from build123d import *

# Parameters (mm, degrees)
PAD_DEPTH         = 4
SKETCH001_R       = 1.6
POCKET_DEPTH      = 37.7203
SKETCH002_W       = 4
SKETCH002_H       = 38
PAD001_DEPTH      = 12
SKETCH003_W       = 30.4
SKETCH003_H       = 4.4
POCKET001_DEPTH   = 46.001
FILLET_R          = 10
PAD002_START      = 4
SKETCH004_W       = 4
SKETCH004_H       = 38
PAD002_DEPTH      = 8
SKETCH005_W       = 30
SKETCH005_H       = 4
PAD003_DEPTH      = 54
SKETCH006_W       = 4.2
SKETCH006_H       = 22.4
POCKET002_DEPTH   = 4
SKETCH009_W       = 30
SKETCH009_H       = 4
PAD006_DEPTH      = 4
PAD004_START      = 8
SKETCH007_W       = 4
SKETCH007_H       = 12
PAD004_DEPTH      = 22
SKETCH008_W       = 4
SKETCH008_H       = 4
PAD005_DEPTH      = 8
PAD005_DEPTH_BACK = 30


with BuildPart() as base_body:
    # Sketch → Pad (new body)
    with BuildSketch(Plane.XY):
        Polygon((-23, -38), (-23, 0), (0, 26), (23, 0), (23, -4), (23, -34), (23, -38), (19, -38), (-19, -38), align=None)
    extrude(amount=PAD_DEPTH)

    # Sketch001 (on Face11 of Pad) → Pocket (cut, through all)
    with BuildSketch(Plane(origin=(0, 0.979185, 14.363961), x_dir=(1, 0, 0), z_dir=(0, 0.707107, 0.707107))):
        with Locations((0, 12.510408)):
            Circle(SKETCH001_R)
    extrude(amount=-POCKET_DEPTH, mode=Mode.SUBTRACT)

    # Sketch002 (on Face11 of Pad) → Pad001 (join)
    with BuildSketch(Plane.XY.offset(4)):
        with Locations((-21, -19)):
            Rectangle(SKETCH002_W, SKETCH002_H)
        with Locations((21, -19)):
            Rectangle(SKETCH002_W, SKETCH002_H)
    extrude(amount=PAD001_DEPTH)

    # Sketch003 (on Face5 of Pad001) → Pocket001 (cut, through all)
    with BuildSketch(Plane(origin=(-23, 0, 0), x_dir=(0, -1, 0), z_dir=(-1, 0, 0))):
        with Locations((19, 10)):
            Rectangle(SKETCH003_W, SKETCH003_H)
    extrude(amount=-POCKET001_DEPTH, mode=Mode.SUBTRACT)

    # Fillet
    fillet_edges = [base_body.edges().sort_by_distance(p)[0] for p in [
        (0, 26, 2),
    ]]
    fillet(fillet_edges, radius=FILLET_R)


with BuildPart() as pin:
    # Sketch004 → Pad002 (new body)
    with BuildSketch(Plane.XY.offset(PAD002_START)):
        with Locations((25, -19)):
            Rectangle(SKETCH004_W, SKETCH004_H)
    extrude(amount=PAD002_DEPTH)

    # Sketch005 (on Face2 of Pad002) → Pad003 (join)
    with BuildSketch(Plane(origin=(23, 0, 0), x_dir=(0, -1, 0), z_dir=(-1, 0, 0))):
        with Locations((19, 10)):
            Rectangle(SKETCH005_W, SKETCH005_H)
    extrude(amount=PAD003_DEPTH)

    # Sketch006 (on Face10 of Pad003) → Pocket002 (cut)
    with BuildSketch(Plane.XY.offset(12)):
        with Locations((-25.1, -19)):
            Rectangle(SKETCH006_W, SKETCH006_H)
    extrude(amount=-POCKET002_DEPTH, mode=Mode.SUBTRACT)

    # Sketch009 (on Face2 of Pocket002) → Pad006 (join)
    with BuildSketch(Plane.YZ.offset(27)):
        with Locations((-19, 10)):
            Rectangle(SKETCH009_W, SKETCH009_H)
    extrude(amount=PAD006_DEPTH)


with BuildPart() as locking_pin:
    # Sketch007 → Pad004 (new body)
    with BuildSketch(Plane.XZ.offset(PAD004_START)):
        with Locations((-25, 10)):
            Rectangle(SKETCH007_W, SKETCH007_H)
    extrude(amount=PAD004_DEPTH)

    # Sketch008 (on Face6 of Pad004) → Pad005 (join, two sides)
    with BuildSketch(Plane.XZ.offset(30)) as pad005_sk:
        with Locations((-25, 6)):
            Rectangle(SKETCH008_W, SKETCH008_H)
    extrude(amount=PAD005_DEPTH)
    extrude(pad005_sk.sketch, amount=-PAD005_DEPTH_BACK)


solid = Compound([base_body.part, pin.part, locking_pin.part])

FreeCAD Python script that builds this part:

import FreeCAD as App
import Part
import Sketcher
from FreeCAD import Vector


def edges_at(feature, points):
    """Names of the edges that pass closest to the given points."""
    edges = feature.Shape.Edges
    near = lambda p: min(range(len(edges)), key=lambda i: edges[i].distToShape(Part.Vertex(*p))[0])
    return sorted({f"Edge{near(p) + 1}" for p in points})

doc = App.newDocument("Part")
body = doc.addObject("PartDesign::Body", "Body")

# Sketch on XY plane
sketch1 = body.newObject("Sketcher::SketchObject", "Sketch")
sketch1.AttachmentSupport = (doc.getObject("XY_Plane"), [""])
sketch1.MapMode = "FlatFace"
sketch1.addGeometry(Part.LineSegment(Vector(-23, 0, 0), Vector(-23, -38, 0)), False)
sketch1.addGeometry(Part.LineSegment(Vector(-23, -38, 0), Vector(23, -38, 0)), False)
sketch1.addGeometry(Part.LineSegment(Vector(23, -38, 0), Vector(23, 0, 0)), False)
sketch1.addGeometry(Part.LineSegment(Vector(23, 0, 0), Vector(0, 26, 0)), False)
sketch1.addGeometry(Part.LineSegment(Vector(0, 26, 0), Vector(-23, 0, 0)), False)
sketch1.addConstraint(Sketcher.Constraint("Coincident", 0, 2, 1, 1))
sketch1.addConstraint(Sketcher.Constraint("Coincident", 1, 2, 2, 1))
sketch1.addConstraint(Sketcher.Constraint("Coincident", 2, 2, 3, 1))
sketch1.addConstraint(Sketcher.Constraint("Coincident", 3, 2, 4, 1))
sketch1.addConstraint(Sketcher.Constraint("Coincident", 4, 2, 0, 1))
sketch1.addConstraint(Sketcher.Constraint("Vertical", 0))
sketch1.addConstraint(Sketcher.Constraint("Horizontal", 1))
sketch1.addConstraint(Sketcher.Constraint("Vertical", 2))
sketch1.addConstraint(Sketcher.Constraint("Symmetric", 2, 2, 4, 2, -1, 1))
sketch1.addConstraint(Sketcher.Constraint("PointOnObject", 2, 2, -1))
sketch1.addConstraint(Sketcher.Constraint("PointOnObject", 3, 2, -2))
sketch1.addConstraint(Sketcher.Constraint("DistanceX", 1, 1, 1, 2, 46.0))
sketch1.addConstraint(Sketcher.Constraint("DistanceY", 0, 2, 0, 1, 38.0))
sketch1.addConstraint(Sketcher.Constraint("DistanceY", -1, 1, 3, 2, 26.0))
pad1 = body.newObject("PartDesign::Pad", "Pad")
pad1.Profile = sketch1
pad1.Length = 4

# Sketch on an angled plane
sketch2 = body.newObject("Sketcher::SketchObject", "Sketch001")
sketch2.Placement = App.Placement(Vector(0, 0.979185, 14.363961), App.Rotation(Vector(1, 0, 0), Vector(0, 0.707106781, -0.707106781), Vector(0, 0.707106781, 0.707106781), "ZXY"))
sketch2.addGeometry(Part.Circle(Vector(0, 12.5, 0), Vector(0, 0, 1), 1.6), False)
sketch2.addConstraint(Sketcher.Constraint("PointOnObject", 0, 3, -2))
sketch2.addConstraint(Sketcher.Constraint("Diameter", 0, 3.2))
sketch2.addConstraint(Sketcher.Constraint("DistanceY", -1, 1, 0, 3, 12.510408))
pocket1 = body.newObject("PartDesign::Pocket", "Pocket")
pocket1.Profile = sketch2
pocket1.Type = "ThroughAll"

# Sketch on XY plane
sketch3 = body.newObject("Sketcher::SketchObject", "Sketch002")
sketch3.AttachmentSupport = (doc.getObject("XY_Plane"), [""])
sketch3.MapMode = "FlatFace"
sketch3.AttachmentOffset = App.Placement(Vector(0, 0, 4), App.Rotation())
sketch3.addGeometry(Part.LineSegment(Vector(-23, 0, 0), Vector(-23, -38, 0)), False)
sketch3.addGeometry(Part.LineSegment(Vector(-23, -38, 0), Vector(-19, -38, 0)), False)
sketch3.addGeometry(Part.LineSegment(Vector(-19, -38, 0), Vector(-19, 0, 0)), False)
sketch3.addGeometry(Part.LineSegment(Vector(-19, 0, 0), Vector(-23, 0, 0)), False)
sketch3.addGeometry(Part.LineSegment(Vector(19, 0, 0), Vector(19, -38, 0)), False)
sketch3.addGeometry(Part.LineSegment(Vector(19, -38, 0), Vector(23, -38, 0)), False)
sketch3.addGeometry(Part.LineSegment(Vector(23, -38, 0), Vector(23, 0, 0)), False)
sketch3.addGeometry(Part.LineSegment(Vector(23, 0, 0), Vector(19, 0, 0)), False)
sketch3.addConstraint(Sketcher.Constraint("Coincident", 0, 2, 1, 1))
sketch3.addConstraint(Sketcher.Constraint("Coincident", 1, 2, 2, 1))
sketch3.addConstraint(Sketcher.Constraint("Coincident", 2, 2, 3, 1))
sketch3.addConstraint(Sketcher.Constraint("Coincident", 3, 2, 0, 1))
sketch3.addConstraint(Sketcher.Constraint("Coincident", 4, 2, 5, 1))
sketch3.addConstraint(Sketcher.Constraint("Coincident", 5, 2, 6, 1))
sketch3.addConstraint(Sketcher.Constraint("Coincident", 6, 2, 7, 1))
sketch3.addConstraint(Sketcher.Constraint("Coincident", 7, 2, 4, 1))
sketch3.addConstraint(Sketcher.Constraint("Vertical", 0))
sketch3.addConstraint(Sketcher.Constraint("Horizontal", 1))
sketch3.addConstraint(Sketcher.Constraint("Vertical", 2))
sketch3.addConstraint(Sketcher.Constraint("Horizontal", 3))
sketch3.addConstraint(Sketcher.Constraint("Vertical", 4))
sketch3.addConstraint(Sketcher.Constraint("Horizontal", 5))
sketch3.addConstraint(Sketcher.Constraint("Vertical", 6))
sketch3.addConstraint(Sketcher.Constraint("Horizontal", 7))
sketch3.addConstraint(Sketcher.Constraint("Symmetric", 3, 2, 6, 2, -1, 1))
sketch3.addConstraint(Sketcher.Constraint("Symmetric", 1, 2, 4, 2, -2))
sketch3.addConstraint(Sketcher.Constraint("PointOnObject", 2, 2, -1))
sketch3.addConstraint(Sketcher.Constraint("DistanceX", 1, 1, 1, 2, 4.0))
sketch3.addConstraint(Sketcher.Constraint("DistanceY", 0, 2, 0, 1, 38.0))
sketch3.addConstraint(Sketcher.Constraint("DistanceX", 0, 2, -1, 1, 23.0))
pad2 = body.newObject("PartDesign::Pad", "Pad001")
pad2.Profile = sketch3
pad2.Length = 12

# Sketch on YZ plane
sketch4 = body.newObject("Sketcher::SketchObject", "Sketch003")
sketch4.AttachmentSupport = (doc.getObject("YZ_Plane"), [""])
sketch4.MapMode = "FlatFace"
sketch4.AttachmentOffset = App.Placement(Vector(0, 0, -23), App.Rotation())
sketch4.addGeometry(Part.LineSegment(Vector(-3.8, 12.2, 0), Vector(-3.8, 7.8, 0)), False)
sketch4.addGeometry(Part.LineSegment(Vector(-3.8, 7.8, 0), Vector(-34.2, 7.8, 0)), False)
sketch4.addGeometry(Part.LineSegment(Vector(-34.2, 7.8, 0), Vector(-34.2, 12.2, 0)), False)
sketch4.addGeometry(Part.LineSegment(Vector(-34.2, 12.2, 0), Vector(-3.8, 12.2, 0)), False)
sketch4.addConstraint(Sketcher.Constraint("Coincident", 0, 2, 1, 1))
sketch4.addConstraint(Sketcher.Constraint("Coincident", 1, 2, 2, 1))
sketch4.addConstraint(Sketcher.Constraint("Coincident", 2, 2, 3, 1))
sketch4.addConstraint(Sketcher.Constraint("Coincident", 3, 2, 0, 1))
sketch4.addConstraint(Sketcher.Constraint("Vertical", 0))
sketch4.addConstraint(Sketcher.Constraint("Horizontal", 1))
sketch4.addConstraint(Sketcher.Constraint("Vertical", 2))
sketch4.addConstraint(Sketcher.Constraint("Horizontal", 3))
sketch4.addConstraint(Sketcher.Constraint("DistanceX", 1, 2, 1, 1, 30.4))
sketch4.addConstraint(Sketcher.Constraint("DistanceY", 0, 2, 0, 1, 4.4))
sketch4.addConstraint(Sketcher.Constraint("DistanceX", 0, 2, -1, 1, 3.8))
sketch4.addConstraint(Sketcher.Constraint("DistanceY", -1, 1, 0, 2, 7.8))
pocket2 = body.newObject("PartDesign::Pocket", "Pocket001")
pocket2.Profile = sketch4
pocket2.Type = "ThroughAll"
pocket2.Reversed = True
doc.recompute()

fillet = body.newObject("PartDesign::Fillet", "Fillet")
fillet.Base = (pocket2, edges_at(pocket2, [(0, 26, 2)]))
fillet.Radius = 10
body2 = doc.addObject("PartDesign::Body", "Body001")

# Sketch on XY plane
sketch5 = body2.newObject("Sketcher::SketchObject", "Sketch004")
sketch5.AttachmentSupport = (doc.getObject("XY_Plane001"), [""])
sketch5.MapMode = "FlatFace"
sketch5.AttachmentOffset = App.Placement(Vector(0, 0, 4), App.Rotation())
sketch5.addGeometry(Part.LineSegment(Vector(23, 0, 0), Vector(23, -38, 0)), False)
sketch5.addGeometry(Part.LineSegment(Vector(23, -38, 0), Vector(27, -38, 0)), False)
sketch5.addGeometry(Part.LineSegment(Vector(27, -38, 0), Vector(27, 0, 0)), False)
sketch5.addGeometry(Part.LineSegment(Vector(27, 0, 0), Vector(23, 0, 0)), False)
sketch5.addConstraint(Sketcher.Constraint("Coincident", 0, 2, 1, 1))
sketch5.addConstraint(Sketcher.Constraint("Coincident", 1, 2, 2, 1))
sketch5.addConstraint(Sketcher.Constraint("Coincident", 2, 2, 3, 1))
sketch5.addConstraint(Sketcher.Constraint("Coincident", 3, 2, 0, 1))
sketch5.addConstraint(Sketcher.Constraint("Vertical", 0))
sketch5.addConstraint(Sketcher.Constraint("Horizontal", 1))
sketch5.addConstraint(Sketcher.Constraint("Vertical", 2))
sketch5.addConstraint(Sketcher.Constraint("Horizontal", 3))
sketch5.addConstraint(Sketcher.Constraint("PointOnObject", 2, 2, -1))
sketch5.addConstraint(Sketcher.Constraint("DistanceX", 1, 1, 1, 2, 4.0))
sketch5.addConstraint(Sketcher.Constraint("DistanceY", 0, 2, 0, 1, 38.0))
sketch5.addConstraint(Sketcher.Constraint("DistanceX", -1, 1, 0, 2, 23.0))
pad3 = body2.newObject("PartDesign::Pad", "Pad002")
pad3.Profile = sketch5
pad3.Length = 8

# Sketch on YZ plane
sketch6 = body2.newObject("Sketcher::SketchObject", "Sketch005")
sketch6.AttachmentSupport = (doc.getObject("YZ_Plane001"), [""])
sketch6.MapMode = "FlatFace"
sketch6.AttachmentOffset = App.Placement(Vector(0, 0, 23), App.Rotation())
sketch6.addGeometry(Part.LineSegment(Vector(-4, 12, 0), Vector(-4, 8, 0)), False)
sketch6.addGeometry(Part.LineSegment(Vector(-4, 8, 0), Vector(-34, 8, 0)), False)
sketch6.addGeometry(Part.LineSegment(Vector(-34, 8, 0), Vector(-34, 12, 0)), False)
sketch6.addGeometry(Part.LineSegment(Vector(-34, 12, 0), Vector(-4, 12, 0)), False)
sketch6.addConstraint(Sketcher.Constraint("Coincident", 0, 2, 1, 1))
sketch6.addConstraint(Sketcher.Constraint("Coincident", 1, 2, 2, 1))
sketch6.addConstraint(Sketcher.Constraint("Coincident", 2, 2, 3, 1))
sketch6.addConstraint(Sketcher.Constraint("Coincident", 3, 2, 0, 1))
sketch6.addConstraint(Sketcher.Constraint("Vertical", 0))
sketch6.addConstraint(Sketcher.Constraint("Horizontal", 1))
sketch6.addConstraint(Sketcher.Constraint("Vertical", 2))
sketch6.addConstraint(Sketcher.Constraint("Horizontal", 3))
sketch6.addConstraint(Sketcher.Constraint("DistanceX", 1, 2, 1, 1, 30.0))
sketch6.addConstraint(Sketcher.Constraint("DistanceY", 0, 2, 0, 1, 4.0))
sketch6.addConstraint(Sketcher.Constraint("DistanceX", 0, 2, -1, 1, 4.0))
sketch6.addConstraint(Sketcher.Constraint("DistanceY", -1, 1, 0, 2, 8.0))
pad4 = body2.newObject("PartDesign::Pad", "Pad003")
pad4.Profile = sketch6
pad4.Length = 54
pad4.Reversed = True

# Sketch on XY plane
sketch7 = body2.newObject("Sketcher::SketchObject", "Sketch006")
sketch7.AttachmentSupport = (doc.getObject("XY_Plane001"), [""])
sketch7.MapMode = "FlatFace"
sketch7.AttachmentOffset = App.Placement(Vector(0, 0, 12), App.Rotation())
sketch7.addGeometry(Part.LineSegment(Vector(-27.2, -7.8, 0), Vector(-27.2, -30.2, 0)), False)
sketch7.addGeometry(Part.LineSegment(Vector(-27.2, -30.2, 0), Vector(-23, -30.2, 0)), False)
sketch7.addGeometry(Part.LineSegment(Vector(-23, -30.2, 0), Vector(-23, -7.8, 0)), False)
sketch7.addGeometry(Part.LineSegment(Vector(-23, -7.8, 0), Vector(-27.2, -7.8, 0)), False)
sketch7.addConstraint(Sketcher.Constraint("Coincident", 0, 2, 1, 1))
sketch7.addConstraint(Sketcher.Constraint("Coincident", 1, 2, 2, 1))
sketch7.addConstraint(Sketcher.Constraint("Coincident", 2, 2, 3, 1))
sketch7.addConstraint(Sketcher.Constraint("Coincident", 3, 2, 0, 1))
sketch7.addConstraint(Sketcher.Constraint("Vertical", 0))
sketch7.addConstraint(Sketcher.Constraint("Horizontal", 1))
sketch7.addConstraint(Sketcher.Constraint("Vertical", 2))
sketch7.addConstraint(Sketcher.Constraint("Horizontal", 3))
sketch7.addConstraint(Sketcher.Constraint("DistanceX", 1, 1, 1, 2, 4.2))
sketch7.addConstraint(Sketcher.Constraint("DistanceY", 0, 2, 0, 1, 22.4))
sketch7.addConstraint(Sketcher.Constraint("DistanceX", 1, 2, -1, 1, 23.0))
sketch7.addConstraint(Sketcher.Constraint("DistanceY", 0, 2, -1, 1, 30.2))
pocket3 = body2.newObject("PartDesign::Pocket", "Pocket002")
pocket3.Profile = sketch7
pocket3.Length = 4

# Sketch on YZ plane
sketch8 = body2.newObject("Sketcher::SketchObject", "Sketch007")
sketch8.AttachmentSupport = (doc.getObject("YZ_Plane001"), [""])
sketch8.MapMode = "FlatFace"
sketch8.AttachmentOffset = App.Placement(Vector(0, 0, 27), App.Rotation())
sketch8.addGeometry(Part.LineSegment(Vector(-34, 12, 0), Vector(-34, 8, 0)), False)
sketch8.addGeometry(Part.LineSegment(Vector(-34, 8, 0), Vector(-4, 8, 0)), False)
sketch8.addGeometry(Part.LineSegment(Vector(-4, 8, 0), Vector(-4, 12, 0)), False)
sketch8.addGeometry(Part.LineSegment(Vector(-4, 12, 0), Vector(-34, 12, 0)), False)
sketch8.addConstraint(Sketcher.Constraint("Coincident", 0, 2, 1, 1))
sketch8.addConstraint(Sketcher.Constraint("Coincident", 1, 2, 2, 1))
sketch8.addConstraint(Sketcher.Constraint("Coincident", 2, 2, 3, 1))
sketch8.addConstraint(Sketcher.Constraint("Coincident", 3, 2, 0, 1))
sketch8.addConstraint(Sketcher.Constraint("Vertical", 0))
sketch8.addConstraint(Sketcher.Constraint("Horizontal", 1))
sketch8.addConstraint(Sketcher.Constraint("Vertical", 2))
sketch8.addConstraint(Sketcher.Constraint("Horizontal", 3))
sketch8.addConstraint(Sketcher.Constraint("DistanceX", 1, 1, 1, 2, 30.0))
sketch8.addConstraint(Sketcher.Constraint("DistanceY", 0, 2, 0, 1, 4.0))
sketch8.addConstraint(Sketcher.Constraint("DistanceX", 0, 2, -1, 1, 34.0))
sketch8.addConstraint(Sketcher.Constraint("DistanceY", -1, 1, 0, 2, 8.0))
pad5 = body2.newObject("PartDesign::Pad", "Pad004")
pad5.Profile = sketch8
pad5.Length = 4
body3 = doc.addObject("PartDesign::Body", "Body002")

# Sketch on XZ plane
sketch9 = body3.newObject("Sketcher::SketchObject", "Sketch008")
sketch9.AttachmentSupport = (doc.getObject("XZ_Plane002"), [""])
sketch9.MapMode = "FlatFace"
sketch9.AttachmentOffset = App.Placement(Vector(0, 0, 8), App.Rotation())
sketch9.addGeometry(Part.LineSegment(Vector(-27, 16, 0), Vector(-27, 4, 0)), False)
sketch9.addGeometry(Part.LineSegment(Vector(-27, 4, 0), Vector(-23, 4, 0)), False)
sketch9.addGeometry(Part.LineSegment(Vector(-23, 4, 0), Vector(-23, 16, 0)), False)
sketch9.addGeometry(Part.LineSegment(Vector(-23, 16, 0), Vector(-27, 16, 0)), False)
sketch9.addConstraint(Sketcher.Constraint("Coincident", 0, 2, 1, 1))
sketch9.addConstraint(Sketcher.Constraint("Coincident", 1, 2, 2, 1))
sketch9.addConstraint(Sketcher.Constraint("Coincident", 2, 2, 3, 1))
sketch9.addConstraint(Sketcher.Constraint("Coincident", 3, 2, 0, 1))
sketch9.addConstraint(Sketcher.Constraint("Vertical", 0))
sketch9.addConstraint(Sketcher.Constraint("Horizontal", 1))
sketch9.addConstraint(Sketcher.Constraint("Vertical", 2))
sketch9.addConstraint(Sketcher.Constraint("Horizontal", 3))
sketch9.addConstraint(Sketcher.Constraint("DistanceX", 1, 1, 1, 2, 4.0))
sketch9.addConstraint(Sketcher.Constraint("DistanceY", 0, 2, 0, 1, 12.0))
sketch9.addConstraint(Sketcher.Constraint("DistanceX", 0, 2, -1, 1, 27.0))
sketch9.addConstraint(Sketcher.Constraint("DistanceY", -1, 1, 0, 2, 4.0))
pad6 = body3.newObject("PartDesign::Pad", "Pad005")
pad6.Profile = sketch9
pad6.Length = 22

# Sketch on XZ plane
sketch10 = body3.newObject("Sketcher::SketchObject", "Sketch009")
sketch10.AttachmentSupport = (doc.getObject("XZ_Plane002"), [""])
sketch10.MapMode = "FlatFace"
sketch10.AttachmentOffset = App.Placement(Vector(0, 0, 30), App.Rotation())
sketch10.addGeometry(Part.LineSegment(Vector(-27, 8, 0), Vector(-27, 4, 0)), False)
sketch10.addGeometry(Part.LineSegment(Vector(-27, 4, 0), Vector(-23, 4, 0)), False)
sketch10.addGeometry(Part.LineSegment(Vector(-23, 4, 0), Vector(-23, 8, 0)), False)
sketch10.addGeometry(Part.LineSegment(Vector(-23, 8, 0), Vector(-27, 8, 0)), False)
sketch10.addConstraint(Sketcher.Constraint("Coincident", 0, 2, 1, 1))
sketch10.addConstraint(Sketcher.Constraint("Coincident", 1, 2, 2, 1))
sketch10.addConstraint(Sketcher.Constraint("Coincident", 2, 2, 3, 1))
sketch10.addConstraint(Sketcher.Constraint("Coincident", 3, 2, 0, 1))
sketch10.addConstraint(Sketcher.Constraint("Vertical", 0))
sketch10.addConstraint(Sketcher.Constraint("Horizontal", 1))
sketch10.addConstraint(Sketcher.Constraint("Vertical", 2))
sketch10.addConstraint(Sketcher.Constraint("Horizontal", 3))
sketch10.addConstraint(Sketcher.Constraint("Equal", 3, 0))
sketch10.addConstraint(Sketcher.Constraint("DistanceX", 1, 1, 1, 2, 4.0))
sketch10.addConstraint(Sketcher.Constraint("DistanceX", 0, 2, -1, 1, 27.0))
sketch10.addConstraint(Sketcher.Constraint("DistanceY", -1, 1, 0, 2, 4.0))
pad7 = body3.newObject("PartDesign::Pad", "Pad006")
pad7.Profile = sketch10
pad7.Type = "TwoLengths"
pad7.Length = 8
pad7.Length2 = 30

doc.recompute()
